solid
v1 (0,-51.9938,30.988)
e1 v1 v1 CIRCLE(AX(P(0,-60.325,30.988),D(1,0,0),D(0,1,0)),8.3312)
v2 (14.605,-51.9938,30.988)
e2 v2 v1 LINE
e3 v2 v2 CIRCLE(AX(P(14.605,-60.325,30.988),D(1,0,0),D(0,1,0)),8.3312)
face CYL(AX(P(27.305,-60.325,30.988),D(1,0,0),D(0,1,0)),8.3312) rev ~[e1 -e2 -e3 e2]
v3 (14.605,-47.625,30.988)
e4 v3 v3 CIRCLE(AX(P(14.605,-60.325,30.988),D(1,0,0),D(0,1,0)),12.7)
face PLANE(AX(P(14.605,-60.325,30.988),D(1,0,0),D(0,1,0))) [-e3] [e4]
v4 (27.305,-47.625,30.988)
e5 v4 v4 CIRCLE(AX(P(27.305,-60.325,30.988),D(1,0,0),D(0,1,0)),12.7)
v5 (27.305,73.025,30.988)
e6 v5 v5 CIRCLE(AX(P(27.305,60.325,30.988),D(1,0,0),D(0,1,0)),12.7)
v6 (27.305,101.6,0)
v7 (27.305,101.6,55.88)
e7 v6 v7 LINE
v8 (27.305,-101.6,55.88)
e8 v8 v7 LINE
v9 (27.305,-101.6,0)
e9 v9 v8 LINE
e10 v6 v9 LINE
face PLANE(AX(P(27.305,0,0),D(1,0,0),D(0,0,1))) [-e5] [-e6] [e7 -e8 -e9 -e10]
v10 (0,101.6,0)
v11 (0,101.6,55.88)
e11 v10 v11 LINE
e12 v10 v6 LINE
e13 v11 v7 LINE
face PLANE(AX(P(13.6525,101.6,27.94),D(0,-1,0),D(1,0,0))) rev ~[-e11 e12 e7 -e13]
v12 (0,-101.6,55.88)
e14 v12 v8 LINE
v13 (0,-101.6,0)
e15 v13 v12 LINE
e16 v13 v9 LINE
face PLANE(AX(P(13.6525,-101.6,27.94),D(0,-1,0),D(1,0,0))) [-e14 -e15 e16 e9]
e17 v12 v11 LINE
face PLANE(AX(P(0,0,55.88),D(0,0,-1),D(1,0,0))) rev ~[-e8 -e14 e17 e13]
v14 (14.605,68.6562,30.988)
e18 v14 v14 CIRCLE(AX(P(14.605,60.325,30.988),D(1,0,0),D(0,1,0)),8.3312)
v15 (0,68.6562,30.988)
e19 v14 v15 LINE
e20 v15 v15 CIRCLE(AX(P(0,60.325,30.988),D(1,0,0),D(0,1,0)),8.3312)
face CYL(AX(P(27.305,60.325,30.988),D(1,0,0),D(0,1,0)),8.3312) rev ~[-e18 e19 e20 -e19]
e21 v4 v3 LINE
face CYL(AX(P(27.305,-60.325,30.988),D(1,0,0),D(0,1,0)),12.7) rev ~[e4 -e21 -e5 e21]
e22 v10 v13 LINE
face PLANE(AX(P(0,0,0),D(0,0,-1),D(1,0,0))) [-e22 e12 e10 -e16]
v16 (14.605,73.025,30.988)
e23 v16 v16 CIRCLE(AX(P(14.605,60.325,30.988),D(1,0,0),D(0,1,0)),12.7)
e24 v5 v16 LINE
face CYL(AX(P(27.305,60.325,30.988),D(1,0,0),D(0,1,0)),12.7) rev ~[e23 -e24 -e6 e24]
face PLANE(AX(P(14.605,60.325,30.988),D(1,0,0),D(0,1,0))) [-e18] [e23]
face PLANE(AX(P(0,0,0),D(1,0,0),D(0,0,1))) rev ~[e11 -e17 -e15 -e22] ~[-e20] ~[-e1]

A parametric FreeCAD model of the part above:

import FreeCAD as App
import Part
import Sketcher
from FreeCAD import Vector
Q = App.Units.Quantity


def add_polygon(sketch, points):
    """Adds a closed chain of lines whose ends are joined by coincident constraints."""
    first, n = sketch.GeometryCount, len(points)
    for a, b in zip(points, points[1:] + points[:1]):
        sketch.addGeometry(Part.LineSegment(App.Vector(*a, 0), App.Vector(*b, 0)), False)
    for i in range(n):
        sketch.addConstraint(Sketcher.Constraint("Coincident", first + i, 2, first + (i + 1) % n, 1))

doc = App.newDocument("Part")
body = doc.addObject("PartDesign::Body", "Body")

# Sketch on XZ plane
sketch1 = body.newObject("Sketcher::SketchObject", "Sketch")
sketch1.AttachmentSupport = (doc.getObject("XZ_Plane"), [""])
sketch1.MapMode = "FlatFace"
add_polygon(sketch1, [(0, 56), (0, 0), (27, 0), (27, 56)])  # lines 0-3
sketch1.addConstraint([
    Sketcher.Constraint("Vertical", 0),
    Sketcher.Constraint("Horizontal", 1),
    Sketcher.Constraint("Vertical", 2),
    Sketcher.Constraint("Horizontal", 3),
    Sketcher.Constraint("Coincident", 0, 2, -1, 1),
    Sketcher.Constraint("DistanceY", 0, 2, 0, 1, Q("2.2 in")),
    Sketcher.Constraint("DistanceX", 1, 1, 1, 2, Q("1.075 in")),
])
pad1 = body.newObject("PartDesign::Pad", "Pad")
pad1.Profile = sketch1
pad1.Length = Q("8 in")
pad1.Midplane = True

# Sketch on YZ plane
sketch2 = body.newObject("Sketcher::SketchObject", "Sketch001")
sketch2.AttachmentSupport = (doc.getObject("YZ_Plane"), [""])
sketch2.MapMode = "FlatFace"
sketch2.AttachmentOffset = App.Placement(Vector(0, 0, 1.075 * 25.4), App.Rotation())
sketch2.addGeometry([
    Part.Circle(Vector(-60, 31, 0), Vector(0, 0, 1), 8),
    Part.Circle(Vector(60, 31, 0), Vector(0, 0, 1), 8),
], False)
sketch2.addConstraint([
    Sketcher.Constraint("Equal", 0, 1),
    Sketcher.Constraint("Symmetric", 0, 3, 1, 3, -2),
    Sketcher.Constraint("Diameter", 0, Q("0.656 in")),
    Sketcher.Constraint("DistanceY", -1, 1, 0, 3, Q("1.22 in")),
    Sketcher.Constraint("DistanceX", 0, 3, 1, 3, Q("4.75 in")),
])
pocket1 = body.newObject("PartDesign::Pocket", "Pocket")
pocket1.Profile = sketch2
pocket1.Length = Q("1.5 in")

# Sketch on YZ plane
sketch3 = body.newObject("Sketcher::SketchObject", "Sketch002")
sketch3.AttachmentSupport = (doc.getObject("YZ_Plane"), [""])
sketch3.MapMode = "FlatFace"
sketch3.AttachmentOffset = App.Placement(Vector(0, 0, 1.075 * 25.4), App.Rotation())
sketch3.addGeometry([
    Part.Circle(Vector(-60, 31, 0), Vector(0, 0, 1), 13),
    Part.Circle(Vector(-60, 31, 0), Vector(0, 0, 1), 8),
    Part.Circle(Vector(60, 31, 0), Vector(0, 0, 1), 13),
    Part.Circle(Vector(60, 31, 0), Vector(0, 0, 1), 8),
], False)
sketch3.addConstraint([
    Sketcher.Constraint("Coincident", 1, 3, 0, 3),
    Sketcher.Constraint("Coincident", 3, 3, 2, 3),
    Sketcher.Constraint("Equal", 0, 2),
    Sketcher.Constraint("Equal", 1, 3),
    Sketcher.Constraint("Symmetric", 0, 3, 2, 3, -2),
    Sketcher.Constraint("Diameter", 0, Q("1 in")),
    Sketcher.Constraint("Diameter", 1, Q("0.656 in")),
    Sketcher.Constraint("DistanceY", -1, 1, 0, 3, Q("1.22 in")),
    Sketcher.Constraint("DistanceX", 0, 3, 2, 3, Q("4.75 in")),
])
pocket2 = body.newObject("PartDesign::Pocket", "Pocket001")
pocket2.Profile = sketch3
pocket2.Length = Q("0.5 in")

doc.recompute()
